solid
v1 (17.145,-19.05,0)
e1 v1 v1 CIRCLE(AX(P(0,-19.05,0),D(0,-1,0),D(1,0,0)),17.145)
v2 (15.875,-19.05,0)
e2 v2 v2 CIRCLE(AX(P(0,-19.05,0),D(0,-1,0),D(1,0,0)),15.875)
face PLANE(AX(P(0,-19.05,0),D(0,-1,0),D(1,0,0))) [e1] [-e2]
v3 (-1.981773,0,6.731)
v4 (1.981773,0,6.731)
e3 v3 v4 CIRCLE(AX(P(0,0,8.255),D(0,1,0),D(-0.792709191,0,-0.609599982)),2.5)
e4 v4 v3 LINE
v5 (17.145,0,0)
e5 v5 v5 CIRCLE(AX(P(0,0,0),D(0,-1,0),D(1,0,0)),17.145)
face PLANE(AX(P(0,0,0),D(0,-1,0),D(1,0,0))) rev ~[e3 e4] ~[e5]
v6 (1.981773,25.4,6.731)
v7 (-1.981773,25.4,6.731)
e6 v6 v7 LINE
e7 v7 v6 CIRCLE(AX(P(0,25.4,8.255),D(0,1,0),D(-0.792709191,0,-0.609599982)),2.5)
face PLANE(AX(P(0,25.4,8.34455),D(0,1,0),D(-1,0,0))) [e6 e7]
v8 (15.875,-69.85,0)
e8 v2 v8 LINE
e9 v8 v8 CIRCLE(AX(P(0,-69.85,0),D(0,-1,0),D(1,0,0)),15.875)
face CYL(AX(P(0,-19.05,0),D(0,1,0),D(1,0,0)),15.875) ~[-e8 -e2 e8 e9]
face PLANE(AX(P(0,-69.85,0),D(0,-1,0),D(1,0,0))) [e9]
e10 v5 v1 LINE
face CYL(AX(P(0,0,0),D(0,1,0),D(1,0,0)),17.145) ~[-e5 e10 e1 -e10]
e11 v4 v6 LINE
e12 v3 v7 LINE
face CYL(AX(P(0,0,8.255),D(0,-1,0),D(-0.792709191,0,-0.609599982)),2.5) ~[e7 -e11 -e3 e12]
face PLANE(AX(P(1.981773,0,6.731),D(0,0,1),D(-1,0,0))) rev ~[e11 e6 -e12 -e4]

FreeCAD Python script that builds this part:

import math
import FreeCAD as App
import Part
import Sketcher

V = App.Vector
Q = App.Units.Quantity

doc = App.newDocument("Part")
body = doc.addObject("PartDesign::Body", "Body")

sketch1 = body.newObject("Sketcher::SketchObject", "Sketch")
sketch1.AttachmentSupport = (doc.getObject("XZ_Plane"), [""])
sketch1.MapMode = "FlatFace"
sketch1.addGeometry(Part.Circle(V(0, 0, 0), V(0, 0, 1), 17), False)
sketch1.addConstraint(Sketcher.Constraint("Coincident", 0, 3, -1, 1))
sketch1.addConstraint(Sketcher.Constraint("Diameter", 0, Q("1.35 in")))
pad1 = body.newObject("PartDesign::Pad", "Pad")
pad1.Profile = sketch1
pad1.Length = Q("0.75 in")

sketch2 = body.newObject("Sketcher::SketchObject", "Sketch001")
sketch2.AttachmentSupport = (doc.getObject("XZ_Plane"), [""])
sketch2.MapMode = "FlatFace"
sketch2.addGeometry(Part.LineSegment(V(2, 6.7, 0), V(-2, 6.7, 0)), False)
sketch2.addGeometry(Part.ArcOfCircle(Part.Circle(V(0, 8.3, 0), V(0, 0, 1), 2.5), math.radians(-38), math.radians(218)), False)
sketch2.addConstraint(Sketcher.Constraint("Coincident", 0, 1, 1, 1))
sketch2.addConstraint(Sketcher.Constraint("Coincident", 1, 2, 0, 2))
sketch2.addConstraint(Sketcher.Constraint("Horizontal", 0))
sketch2.addConstraint(Sketcher.Constraint("PointOnObject", 1, 3, -2))
sketch2.addConstraint(Sketcher.Constraint("Radius", 1, 2.5))
sketch2.addConstraint(Sketcher.Constraint("DistanceY", 0, 1, 1, 3, Q("0.06 in")))
sketch2.addConstraint(Sketcher.Constraint("DistanceY", -1, 1, 1, 3, Q("0.325 in")))
pad2 = body.newObject("PartDesign::Pad", "Pad001")
pad2.Profile = sketch2
pad2.Length = Q("1 in")
pad2.Reversed = True

sketch3 = body.newObject("Sketcher::SketchObject", "Sketch002")
sketch3.AttachmentSupport = (doc.getObject("XZ_Plane"), [""])
sketch3.MapMode = "FlatFace"
sketch3.AttachmentOffset = App.Placement(V(0, 0, 0.75 * 25.4), App.Rotation())
sketch3.addGeometry(Part.Circle(V(0, 0, 0), V(0, 0, 1), 16), False)
sketch3.addConstraint(Sketcher.Constraint("Coincident", 0, 3, -1, 1))
sketch3.addConstraint(Sketcher.Constraint("Diameter", 0, Q("1.25 in")))
pad3 = body.newObject("PartDesign::Pad", "Pad002")
pad3.Profile = sketch3
pad3.Length = Q("2 in")

doc.recompute()
